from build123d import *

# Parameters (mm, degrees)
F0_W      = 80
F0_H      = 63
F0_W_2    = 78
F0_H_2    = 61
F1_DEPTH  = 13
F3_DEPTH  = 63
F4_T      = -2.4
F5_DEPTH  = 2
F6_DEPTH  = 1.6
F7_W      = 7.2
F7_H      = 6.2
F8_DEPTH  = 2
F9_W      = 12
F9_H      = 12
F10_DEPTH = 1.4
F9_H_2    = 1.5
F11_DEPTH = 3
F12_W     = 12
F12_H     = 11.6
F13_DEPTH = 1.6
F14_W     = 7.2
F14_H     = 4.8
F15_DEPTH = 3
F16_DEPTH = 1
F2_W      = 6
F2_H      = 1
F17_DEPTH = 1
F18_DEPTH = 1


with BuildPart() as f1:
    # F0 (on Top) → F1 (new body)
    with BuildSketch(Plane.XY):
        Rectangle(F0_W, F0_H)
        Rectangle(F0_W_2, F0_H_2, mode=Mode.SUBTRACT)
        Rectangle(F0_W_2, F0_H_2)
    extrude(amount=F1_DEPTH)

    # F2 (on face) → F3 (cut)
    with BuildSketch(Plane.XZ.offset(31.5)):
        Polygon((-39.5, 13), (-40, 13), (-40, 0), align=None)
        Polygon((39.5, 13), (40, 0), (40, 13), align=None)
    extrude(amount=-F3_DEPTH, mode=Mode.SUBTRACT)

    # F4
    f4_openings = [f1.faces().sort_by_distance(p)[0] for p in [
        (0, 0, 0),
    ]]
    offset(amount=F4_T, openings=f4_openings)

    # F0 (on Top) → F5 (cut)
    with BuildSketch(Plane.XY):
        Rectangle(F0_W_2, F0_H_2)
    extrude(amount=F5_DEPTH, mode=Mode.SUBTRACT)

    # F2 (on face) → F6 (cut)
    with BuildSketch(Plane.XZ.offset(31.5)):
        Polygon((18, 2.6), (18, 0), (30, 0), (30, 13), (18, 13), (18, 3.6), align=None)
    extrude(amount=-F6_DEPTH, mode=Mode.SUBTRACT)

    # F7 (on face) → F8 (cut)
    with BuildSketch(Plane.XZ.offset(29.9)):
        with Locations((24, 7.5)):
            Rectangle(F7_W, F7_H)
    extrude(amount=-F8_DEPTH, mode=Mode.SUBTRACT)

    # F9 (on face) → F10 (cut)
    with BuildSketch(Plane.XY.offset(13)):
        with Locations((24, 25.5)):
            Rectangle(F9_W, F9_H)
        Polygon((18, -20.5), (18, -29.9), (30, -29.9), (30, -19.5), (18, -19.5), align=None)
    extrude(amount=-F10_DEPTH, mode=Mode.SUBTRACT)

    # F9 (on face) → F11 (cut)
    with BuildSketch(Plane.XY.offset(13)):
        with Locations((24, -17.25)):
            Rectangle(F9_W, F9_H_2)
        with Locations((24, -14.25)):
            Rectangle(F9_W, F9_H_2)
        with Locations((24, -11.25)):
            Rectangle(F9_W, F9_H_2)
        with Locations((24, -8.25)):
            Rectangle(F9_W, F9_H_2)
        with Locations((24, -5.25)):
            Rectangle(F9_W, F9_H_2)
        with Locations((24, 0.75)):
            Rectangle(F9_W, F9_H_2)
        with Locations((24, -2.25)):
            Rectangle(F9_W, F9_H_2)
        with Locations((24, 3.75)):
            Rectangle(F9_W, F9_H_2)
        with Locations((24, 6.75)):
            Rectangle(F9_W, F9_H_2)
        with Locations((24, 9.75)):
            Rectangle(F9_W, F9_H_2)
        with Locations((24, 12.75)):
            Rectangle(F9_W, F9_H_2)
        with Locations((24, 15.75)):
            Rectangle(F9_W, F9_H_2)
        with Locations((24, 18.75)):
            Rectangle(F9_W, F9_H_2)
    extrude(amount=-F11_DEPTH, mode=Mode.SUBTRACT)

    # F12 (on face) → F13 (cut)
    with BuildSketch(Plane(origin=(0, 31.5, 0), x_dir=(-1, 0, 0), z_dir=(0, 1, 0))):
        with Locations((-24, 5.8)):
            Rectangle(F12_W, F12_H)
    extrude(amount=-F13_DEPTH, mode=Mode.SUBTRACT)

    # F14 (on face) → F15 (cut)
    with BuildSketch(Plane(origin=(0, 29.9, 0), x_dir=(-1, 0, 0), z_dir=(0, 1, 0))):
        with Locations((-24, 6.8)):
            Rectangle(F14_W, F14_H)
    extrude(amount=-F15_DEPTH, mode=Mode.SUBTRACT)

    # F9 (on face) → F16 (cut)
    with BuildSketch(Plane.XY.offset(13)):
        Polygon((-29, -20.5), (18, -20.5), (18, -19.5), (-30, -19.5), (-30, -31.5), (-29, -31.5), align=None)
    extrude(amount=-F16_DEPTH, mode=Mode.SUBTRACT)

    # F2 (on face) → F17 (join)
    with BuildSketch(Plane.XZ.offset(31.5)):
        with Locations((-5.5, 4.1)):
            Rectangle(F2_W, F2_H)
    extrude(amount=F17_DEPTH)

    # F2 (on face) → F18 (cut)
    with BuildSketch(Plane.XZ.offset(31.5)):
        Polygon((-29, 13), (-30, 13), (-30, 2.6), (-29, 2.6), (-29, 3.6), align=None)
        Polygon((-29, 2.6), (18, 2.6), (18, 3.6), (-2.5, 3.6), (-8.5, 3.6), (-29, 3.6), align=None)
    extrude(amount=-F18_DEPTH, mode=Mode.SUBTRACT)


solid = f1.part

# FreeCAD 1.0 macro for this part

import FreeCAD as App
import Part
import Sketcher

V = App.Vector
Q = App.Units.Quantity


def faces_at(feature, points):
    """Names of the faces that lie closest to the given points."""
    faces = feature.Shape.Faces
    near = lambda p: min(range(len(faces)), key=lambda i: faces[i].distToShape(Part.Vertex(*p))[0])
    return sorted({f"Face{near(p) + 1}" for p in points})


def add_polygon(sketch, points):
    """Adds a closed chain of lines whose ends are joined by coincident constraints."""
    first, n = sketch.GeometryCount, len(points)
    for a, b in zip(points, points[1:] + points[:1]):
        sketch.addGeometry(Part.LineSegment(App.Vector(*a, 0), App.Vector(*b, 0)), False)
    for i in range(n):
        sketch.addConstraint(Sketcher.Constraint("Coincident", first + i, 2, first + (i + 1) % n, 1))

doc = App.newDocument("Part")
body = doc.addObject("PartDesign::Body", "Body")

# Sketch on XY plane
sketch1 = body.newObject("Sketcher::SketchObject", "Sketch")
sketch1.AttachmentSupport = (doc.getObject("XY_Plane"), [""])
sketch1.MapMode = "FlatFace"
add_polygon(sketch1, [(-40, 31.5), (-40, -31.5), (40, -31.5), (40, 31.5)])  # lines 0-3
sketch1.addConstraint(Sketcher.Constraint("Vertical", 0))
sketch1.addConstraint(Sketcher.Constraint("Horizontal", 1))
sketch1.addConstraint(Sketcher.Constraint("Vertical", 2))
sketch1.addConstraint(Sketcher.Constraint("Horizontal", 3))
sketch1.addConstraint(Sketcher.Constraint("Symmetric", 0, 2, 2, 2, -1, 1))
sketch1.addConstraint(Sketcher.Constraint("DistanceX", 1, 1, 1, 2, Q("80 mm")))
sketch1.addConstraint(Sketcher.Constraint("DistanceY", 0, 2, 0, 1, Q("63 mm")))
pad1 = body.newObject("PartDesign::Pad", "Pad")
pad1.Profile = sketch1
pad1.Length = 13

# Sketch on XZ plane
sketch2 = body.newObject("Sketcher::SketchObject", "Sketch001")
sketch2.AttachmentSupport = (doc.getObject("XZ_Plane"), [""])
sketch2.MapMode = "FlatFace"
sketch2.AttachmentOffset = App.Placement(V(0, 0, 31.5), App.Rotation())
add_polygon(sketch2, [(-39.5, 13), (-40, 13), (-40, 0)])  # lines 0-2
add_polygon(sketch2, [(39.5, 13), (40, 0), (40, 13)])  # lines 3-5
sketch2.addConstraint(Sketcher.Constraint("Horizontal", 0))
sketch2.addConstraint(Sketcher.Constraint("Vertical", 1))
sketch2.addConstraint(Sketcher.Constraint("Vertical", 4))
sketch2.addConstraint(Sketcher.Constraint("Horizontal", 5))
sketch2.addConstraint(Sketcher.Constraint("Symmetric", 1, 2, 3, 2, -1, 1))
sketch2.addConstraint(Sketcher.Constraint("Symmetric", 2, 2, 5, 2, -2))
sketch2.addConstraint(Sketcher.Constraint("PointOnObject", 1, 2, -1))
sketch2.addConstraint(Sketcher.Constraint("DistanceY", 1, 2, 1, 1, Q("13 mm")))
sketch2.addConstraint(Sketcher.Constraint("DistanceX", 0, 2, 0, 1, Q("0.5 mm")))
sketch2.addConstraint(Sketcher.Constraint("DistanceX", 0, 2, -1, 1, Q("40 mm")))
pocket1 = body.newObject("PartDesign::Pocket", "Pocket")
pocket1.Profile = sketch2
pocket1.Length = 63
doc.recompute()

thickness = body.newObject("PartDesign::Thickness", "Thickness")
thickness.Base = (pocket1, faces_at(pocket1, [(0, 0, 0)]))
thickness.Value = 2.4
thickness.Reversed = True
thickness.Join = "Arc"

# Sketch on XY plane
sketch3 = body.newObject("Sketcher::SketchObject", "Sketch002")
sketch3.AttachmentSupport = (doc.getObject("XY_Plane"), [""])
sketch3.MapMode = "FlatFace"
add_polygon(sketch3, [(-39, 30.5), (-39, -30.5), (39, -30.5), (39, 30.5)])  # lines 0-3
sketch3.addConstraint(Sketcher.Constraint("Vertical", 0))
sketch3.addConstraint(Sketcher.Constraint("Horizontal", 1))
sketch3.addConstraint(Sketcher.Constraint("Vertical", 2))
sketch3.addConstraint(Sketcher.Constraint("Horizontal", 3))
sketch3.addConstraint(Sketcher.Constraint("Symmetric", 0, 2, 2, 2, -1, 1))
sketch3.addConstraint(Sketcher.Constraint("DistanceX", 1, 1, 1, 2, Q("78 mm")))
sketch3.addConstraint(Sketcher.Constraint("DistanceY", 0, 2, 0, 1, Q("61 mm")))
pocket2 = body.newObject("PartDesign::Pocket", "Pocket001")
pocket2.Profile = sketch3
pocket2.Length = 2
pocket2.Reversed = True

# Sketch on XZ plane
sketch4 = body.newObject("Sketcher::SketchObject", "Sketch003")
sketch4.AttachmentSupport = (doc.getObject("XZ_Plane"), [""])
sketch4.MapMode = "FlatFace"
sketch4.AttachmentOffset = App.Placement(V(0, 0, 31.5), App.Rotation())
add_polygon(sketch4, [(18, 0), (30, 0), (30, 13), (18, 13)])  # lines 0-3
sketch4.addConstraint(Sketcher.Constraint("Horizontal", 0))
sketch4.addConstraint(Sketcher.Constraint("Vertical", 1))
sketch4.addConstraint(Sketcher.Constraint("Horizontal", 2))
sketch4.addConstraint(Sketcher.Constraint("Vertical", 3))
sketch4.addConstraint(Sketcher.Constraint("PointOnObject", 0, 2, -1))
sketch4.addConstraint(Sketcher.Constraint("DistanceX", 0, 1, 0, 2, Q("12 mm")))
sketch4.addConstraint(Sketcher.Constraint("DistanceY", 1, 1, 1, 2, Q("13 mm")))
sketch4.addConstraint(Sketcher.Constraint("DistanceX", -1, 1, 0, 2, Q("30 mm")))
pocket3 = body.newObject("PartDesign::Pocket", "Pocket002")
pocket3.Profile = sketch4
pocket3.Length = 1.6

# Sketch on XZ plane
sketch5 = body.newObject("Sketcher::SketchObject", "Sketch004")
sketch5.AttachmentSupport = (doc.getObject("XZ_Plane"), [""])
sketch5.MapMode = "FlatFace"
sketch5.AttachmentOffset = App.Placement(V(0, 0, 29.9), App.Rotation())
add_polygon(sketch5, [(20.4, 10.6), (20.4, 4.4), (27.6, 4.4), (27.6, 10.6)])  # lines 0-3
sketch5.addConstraint(Sketcher.Constraint("Vertical", 0))
sketch5.addConstraint(Sketcher.Constraint("Horizontal", 1))
sketch5.addConstraint(Sketcher.Constraint("Vertical", 2))
sketch5.addConstraint(Sketcher.Constraint("Horizontal", 3))
sketch5.addConstraint(Sketcher.Constraint("DistanceX", 1, 1, 1, 2, Q("7.2 mm")))
sketch5.addConstraint(Sketcher.Constraint("DistanceY", 0, 2, 0, 1, Q("6.2 mm")))
sketch5.addConstraint(Sketcher.Constraint("DistanceX", -1, 1, 0, 2, Q("20.4 mm")))
sketch5.addConstraint(Sketcher.Constraint("DistanceY", -1, 1, 0, 2, Q("4.4 mm")))
pocket4 = body.newObject("PartDesign::Pocket", "Pocket003")
pocket4.Profile = sketch5
pocket4.Length = 2

# Sketch on XY plane
sketch6 = body.newObject("Sketcher::SketchObject", "Sketch005")
sketch6.AttachmentSupport = (doc.getObject("XY_Plane"), [""])
sketch6.MapMode = "FlatFace"
sketch6.AttachmentOffset = App.Placement(V(0, 0, 13), App.Rotation())
add_polygon(sketch6, [(18, 31.5), (18, 19.5), (30, 19.5), (30, 31.5)])  # lines 0-3
add_polygon(sketch6, [(18, -29.9), (30, -29.9), (30, -19.5), (18, -19.5)])  # lines 4-7
sketch6.addConstraint(Sketcher.Constraint("Vertical", 0))
sketch6.addConstraint(Sketcher.Constraint("Horizontal", 1))
sketch6.addConstraint(Sketcher.Constraint("Vertical", 2))
sketch6.addConstraint(Sketcher.Constraint("Horizontal", 3))
sketch6.addConstraint(Sketcher.Constraint("Horizontal", 4))
sketch6.addConstraint(Sketcher.Constraint("Vertical", 5))
sketch6.addConstraint(Sketcher.Constraint("Horizontal", 6))
sketch6.addConstraint(Sketcher.Constraint("Vertical", 7))
sketch6.addConstraint(Sketcher.Constraint("Symmetric", 1, 2, 5, 2, -1))
sketch6.addConstraint(Sketcher.Constraint("Vertical", 3, 2, 6, 2))
sketch6.addConstraint(Sketcher.Constraint("Equal", 6, 0))
sketch6.addConstraint(Sketcher.Constraint("DistanceX", 1, 1, 1, 2, Q("12 mm")))
sketch6.addConstraint(Sketcher.Constraint("DistanceY", 5, 1, 5, 2, Q("10.4 mm")))
sketch6.addConstraint(Sketcher.Constraint("DistanceX", -1, 1, 0, 2, Q("18 mm")))
sketch6.addConstraint(Sketcher.Constraint("DistanceY", 5, 2, 1, 2, Q("39 mm")))
pocket5 = body.newObject("PartDesign::Pocket", "Pocket004")
pocket5.Profile = sketch6
pocket5.Length = 1.4

# Sketch on XY plane
sketch7 = body.newObject("Sketcher::SketchObject", "Sketch006")
sketch7.AttachmentSupport = (doc.getObject("XY_Plane"), [""])
sketch7.MapMode = "FlatFace"
sketch7.AttachmentOffset = App.Placement(V(0, 0, 13), App.Rotation())
add_polygon(sketch7, [(18, -16.5), (18, -18), (30, -18), (30, -16.5)])  # lines 0-3
add_polygon(sketch7, [(18, -13.5), (18, -15), (30, -15), (30, -13.5)])  # lines 4-7
add_polygon(sketch7, [(18, -10.5), (18, -12), (30, -12), (30, -10.5)])  # lines 8-11
add_polygon(sketch7, [(18, -7.5), (18, -9), (30, -9), (30, -7.5)])  # lines 12-15
add_polygon(sketch7, [(18, -4.5), (18, -6), (30, -6), (30, -4.5)])  # lines 16-19
add_polygon(sketch7, [(18, 1.5), (18, 0), (30, 0), (30, 1.5)])  # lines 20-23
add_polygon(sketch7, [(18, -1.5), (18, -3), (30, -3), (30, -1.5)])  # lines 24-27
add_polygon(sketch7, [(18, 4.5), (18, 3), (30, 3), (30, 4.5)])  # lines 28-31
add_polygon(sketch7, [(18, 7.5), (18, 6), (30, 6), (30, 7.5)])  # lines 32-35
add_polygon(sketch7, [(18, 10.5), (18, 9), (30, 9), (30, 10.5)])  # lines 36-39
add_polygon(sketch7, [(18, 13.5), (18, 12), (30, 12), (30, 13.5)])  # lines 40-43
add_polygon(sketch7, [(18, 16.5), (18, 15), (30, 15), (30, 16.5)])  # lines 44-47
add_polygon(sketch7, [(18, 19.5), (18, 18), (30, 18), (30, 19.5)])  # lines 48-51
sketch7.addConstraint(Sketcher.Constraint("Vertical", 0))
sketch7.addConstraint(Sketcher.Constraint("Horizontal", 1))
sketch7.addConstraint(Sketcher.Constraint("Vertical", 2))
sketch7.addConstraint(Sketcher.Constraint("Horizontal", 3))
sketch7.addConstraint(Sketcher.Constraint("Vertical", 4))
sketch7.addConstraint(Sketcher.Constraint("Horizontal", 5))
sketch7.addConstraint(Sketcher.Constraint("Vertical", 6))
sketch7.addConstraint(Sketcher.Constraint("Horizontal", 7))
sketch7.addConstraint(Sketcher.Constraint("Vertical", 8))
sketch7.addConstraint(Sketcher.Constraint("Horizontal", 9))
sketch7.addConstraint(Sketcher.Constraint("Vertical", 10))
sketch7.addConstraint(Sketcher.Constraint("Horizontal", 11))
sketch7.addConstraint(Sketcher.Constraint("Vertical", 12))
sketch7.addConstraint(Sketcher.Constraint("Horizontal", 13))
sketch7.addConstraint(Sketcher.Constraint("Vertical", 14))
sketch7.addConstraint(Sketcher.Constraint("Horizontal", 15))
sketch7.addConstraint(Sketcher.Constraint("Vertical", 16))
sketch7.addConstraint(Sketcher.Constraint("Horizontal", 17))
sketch7.addConstraint(Sketcher.Constraint("Vertical", 18))
sketch7.addConstraint(Sketcher.Constraint("Horizontal", 19))
sketch7.addConstraint(Sketcher.Constraint("Vertical", 20))
sketch7.addConstraint(Sketcher.Constraint("Horizontal", 21))
sketch7.addConstraint(Sketcher.Constraint("Vertical", 22))
sketch7.addConstraint(Sketcher.Constraint("Horizontal", 23))
sketch7.addConstraint(Sketcher.Constraint("Vertical", 24))
sketch7.addConstraint(Sketcher.Constraint("Horizontal", 25))
sketch7.addConstraint(Sketcher.Constraint("Vertical", 26))
sketch7.addConstraint(Sketcher.Constraint("Horizontal", 27))
sketch7.addConstraint(Sketcher.Constraint("Vertical", 28))
sketch7.addConstraint(Sketcher.Constraint("Horizontal", 29))
sketch7.addConstraint(Sketcher.Constraint("Vertical", 30))
sketch7.addConstraint(Sketcher.Constraint("Horizontal", 31))
sketch7.addConstraint(Sketcher.Constraint("Vertical", 32))
sketch7.addConstraint(Sketcher.Constraint("Horizontal", 33))
sketch7.addConstraint(Sketcher.Constraint("Vertical", 34))
sketch7.addConstraint(Sketcher.Constraint("Horizontal", 35))
sketch7.addConstraint(Sketcher.Constraint("Vertical", 36))
sketch7.addConstraint(Sketcher.Constraint("Horizontal", 37))
sketch7.addConstraint(Sketcher.Constraint("Vertical", 38))
sketch7.addConstraint(Sketcher.Constraint("Horizontal", 39))
sketch7.addConstraint(Sketcher.Constraint("Vertical", 40))
sketch7.addConstraint(Sketcher.Constraint("Horizontal", 41))
sketch7.addConstraint(Sketcher.Constraint("Vertical", 42))
sketch7.addConstraint(Sketcher.Constraint("Horizontal", 43))
sketch7.addConstraint(Sketcher.Constraint("Vertical", 44))
sketch7.addConstraint(Sketcher.Constraint("Horizontal", 45))
sketch7.addConstraint(Sketcher.Constraint("Vertical", 46))
sketch7.addConstraint(Sketcher.Constraint("Horizontal", 47))
sketch7.addConstraint(Sketcher.Constraint("Vertical", 48))
sketch7.addConstraint(Sketcher.Constraint("Horizontal", 49))
sketch7.addConstraint(Sketcher.Constraint("Vertical", 50))
sketch7.addConstraint(Sketcher.Constraint("Horizontal", 51))
sketch7.addConstraint(Sketcher.Constraint("Symmetric", 22, 2, 26, 2, -1))
sketch7.addConstraint(Sketcher.Constraint("Symmetric", 24, 2, 28, 2, -1))
sketch7.addConstraint(Sketcher.Constraint("Symmetric", 18, 2, 30, 2, -1))
sketch7.addConstraint(Sketcher.Constraint("Symmetric", 16, 2, 32, 2, -1))
sketch7.addConstraint(Sketcher.Constraint("Symmetric", 14, 2, 34, 2, -1))
sketch7.addConstraint(Sketcher.Constraint("Symmetric", 12, 2, 36, 2, -1))
sketch7.addConstraint(Sketcher.Constraint("Symmetric", 10, 2, 38, 2, -1))
sketch7.addConstraint(Sketcher.Constraint("Symmetric", 8, 2, 40, 2, -1))
sketch7.addConstraint(Sketcher.Constraint("Symmetric", 6, 2, 42, 2, -1))
sketch7.addConstraint(Sketcher.Constraint("Symmetric", 4, 2, 44, 2, -1))
sketch7.addConstraint(Sketcher.Constraint("Symmetric", 2, 2, 46, 2, -1))
sketch7.addConstraint(Sketcher.Constraint("Symmetric", 0, 2, 48, 2, -1))
sketch7.addConstraint(Sketcher.Constraint("PointOnObject", 20, 2, -1))
sketch7.addConstraint(Sketcher.Constraint("Vertical", 3, 2, 4, 2))
sketch7.addConstraint(Sketcher.Constraint("Vertical", 2, 2, 5, 2))
sketch7.addConstraint(Sketcher.Constraint("Vertical", 7, 2, 8, 2))
sketch7.addConstraint(Sketcher.Constraint("Vertical", 6, 2, 9, 2))
sketch7.addConstraint(Sketcher.Constraint("Vertical", 11, 2, 12, 2))
sketch7.addConstraint(Sketcher.Constraint("Vertical", 10, 2, 13, 2))
sketch7.addConstraint(Sketcher.Constraint("Vertical", 15, 2, 16, 2))
sketch7.addConstraint(Sketcher.Constraint("Vertical", 14, 2, 17, 2))
sketch7.addConstraint(Sketcher.Constraint("Vertical", 19, 2, 20, 2))
sketch7.addConstraint(Sketcher.Constraint("Vertical", 18, 2, 21, 2))
sketch7.addConstraint(Sketcher.Constraint("Vertical", 23, 2, 24, 2))
sketch7.addConstraint(Sketcher.Constraint("Vertical", 46, 2, 49, 2))
sketch7.addConstraint(Sketcher.Constraint("Equal", 2, 4))
sketch7.addConstraint(Sketcher.Constraint("Equal", 6, 8))
sketch7.addConstraint(Sketcher.Constraint("Equal", 10, 12))
sketch7.addConstraint(Sketcher.Constraint("Equal", 14, 16))
sketch7.addConstraint(Sketcher.Constraint("Equal", 18, 20))
sketch7.addConstraint(Sketcher.Constraint("Equal", 22, 24))
sketch7.addConstraint(Sketcher.Constraint("Equal", 26, 28))
sketch7.addConstraint(Sketcher.Constraint("Equal", 30, 32))
sketch7.addConstraint(Sketcher.Constraint("Equal", 34, 36))
sketch7.addConstraint(Sketcher.Constraint("Equal", 38, 40))
sketch7.addConstraint(Sketcher.Constraint("Equal", 42, 44))
sketch7.addConstraint(Sketcher.Constraint("Equal", 46, 48))
sketch7.addConstraint(Sketcher.Constraint("DistanceX", 1, 1, 1, 2, Q("12 mm")))
sketch7.addConstraint(Sketcher.Constraint("DistanceY", 0, 2, 0, 1, Q("1.5 mm")))
sketch7.addConstraint(Sketcher.Constraint("DistanceX", -1, 1, 0, 2, Q("18 mm")))
pocket6 = body.newObject("PartDesign::Pocket", "Pocket005")
pocket6.Profile = sketch7
pocket6.Length = 3

# Sketch on XZ plane
sketch8 = body.newObject("Sketcher::SketchObject", "Sketch007")
sketch8.AttachmentSupport = (doc.getObject("XZ_Plane"), [""])
sketch8.MapMode = "FlatFace"
sketch8.AttachmentOffset = App.Placement(V(0, 0, -31.5), App.Rotation())
add_polygon(sketch8, [(30, 11.6), (30, 0), (18, 0), (18, 11.6)])  # lines 0-3
sketch8.addConstraint(Sketcher.Constraint("Vertical", 0))
sketch8.addConstraint(Sketcher.Constraint("Horizontal", 1))
sketch8.addConstraint(Sketcher.Constraint("Vertical", 2))
sketch8.addConstraint(Sketcher.Constraint("Horizontal", 3))
sketch8.addConstraint(Sketcher.Constraint("PointOnObject", 0, 2, -1))
sketch8.addConstraint(Sketcher.Constraint("DistanceX", 1, 2, 1, 1, Q("12 mm")))
sketch8.addConstraint(Sketcher.Constraint("DistanceY", 0, 2, 0, 1, Q("11.6 mm")))
sketch8.addConstraint(Sketcher.Constraint("DistanceX", -1, 1, 0, 2, Q("30 mm")))
pocket7 = body.newObject("PartDesign::Pocket", "Pocket006")
pocket7.Profile = sketch8
pocket7.Length = 1.6
pocket7.Reversed = True

# Sketch on XZ plane
sketch9 = body.newObject("Sketcher::SketchObject", "Sketch008")
sketch9.AttachmentSupport = (doc.getObject("XZ_Plane"), [""])
sketch9.MapMode = "FlatFace"
sketch9.AttachmentOffset = App.Placement(V(0, 0, -29.9), App.Rotation())
add_polygon(sketch9, [(27.6, 9.2), (27.6, 4.4), (20.4, 4.4), (20.4, 9.2)])  # lines 0-3
sketch9.addConstraint(Sketcher.Constraint("Vertical", 0))
sketch9.addConstraint(Sketcher.Constraint("Horizontal", 1))
sketch9.addConstraint(Sketcher.Constraint("Vertical", 2))
sketch9.addConstraint(Sketcher.Constraint("Horizontal", 3))
sketch9.addConstraint(Sketcher.Constraint("DistanceX", 1, 2, 1, 1, Q("7.2 mm")))
sketch9.addConstraint(Sketcher.Constraint("DistanceY", 0, 2, 0, 1, Q("4.8 mm")))
sketch9.addConstraint(Sketcher.Constraint("DistanceX", -1, 1, 0, 2, Q("27.6 mm")))
sketch9.addConstraint(Sketcher.Constraint("DistanceY", -1, 1, 0, 2, Q("4.4 mm")))
pocket8 = body.newObject("PartDesign::Pocket", "Pocket007")
pocket8.Profile = sketch9
pocket8.Length = 3
pocket8.Reversed = True

# Sketch on XY plane
sketch10 = body.newObject("Sketcher::SketchObject", "Sketch009")
sketch10.AttachmentSupport = (doc.getObject("XY_Plane"), [""])
sketch10.MapMode = "FlatFace"
sketch10.AttachmentOffset = App.Placement(V(0, 0, 13), App.Rotation())
add_polygon(sketch10, [(-29, -20.5), (18, -20.5), (18, -19.5), (-30, -19.5), (-30, -31.5), (-29, -31.5)])  # lines 0-5
sketch10.addConstraint(Sketcher.Constraint("Horizontal", 0))
sketch10.addConstraint(Sketcher.Constraint("Vertical", 1))
sketch10.addConstraint(Sketcher.Constraint("Horizontal", 2))
sketch10.addConstraint(Sketcher.Constraint("Vertical", 3))
sketch10.addConstraint(Sketcher.Constraint("Horizontal", 4))
sketch10.addConstraint(Sketcher.Constraint("Vertical", 5))
sketch10.addConstraint(Sketcher.Constraint("Equal", 4, 1))
sketch10.addConstraint(Sketcher.Constraint("DistanceX", 0, 1, 0, 2, Q("47 mm")))
sketch10.addConstraint(Sketcher.Constraint("DistanceX", 2, 2, 2, 1, Q("48 mm")))
sketch10.addConstraint(Sketcher.Constraint("DistanceY", 3, 2, 3, 1, Q("12 mm")))
sketch10.addConstraint(Sketcher.Constraint("DistanceX", -1, 1, 0, 2, Q("18 mm")))
sketch10.addConstraint(Sketcher.Constraint("DistanceY", 0, 2, -1, 1, Q("20.5 mm")))
pocket9 = body.newObject("PartDesign::Pocket", "Pocket008")
pocket9.Profile = sketch10
pocket9.Length = 1

# Sketch on XZ plane
sketch11 = body.newObject("Sketcher::SketchObject", "Sketch010")
sketch11.AttachmentSupport = (doc.getObject("XZ_Plane"), [""])
sketch11.MapMode = "FlatFace"
sketch11.AttachmentOffset = App.Placement(V(0, 0, 31.5), App.Rotation())
add_polygon(sketch11, [(-8.5, 4.6), (-8.5, 3.6), (-2.5, 3.6), (-2.5, 4.6)])  # lines 0-3
sketch11.addConstraint(Sketcher.Constraint("Vertical", 0))
sketch11.addConstraint(Sketcher.Constraint("Horizontal", 1))
sketch11.addConstraint(Sketcher.Constraint("Vertical", 2))
sketch11.addConstraint(Sketcher.Constraint("Horizontal", 3))
sketch11.addConstraint(Sketcher.Constraint("DistanceX", 1, 1, 1, 2, Q("6 mm")))
sketch11.addConstraint(Sketcher.Constraint("DistanceY", 0, 2, 0, 1, Q("1 mm")))
sketch11.addConstraint(Sketcher.Constraint("DistanceX", 0, 2, -1, 1, Q("8.5 mm")))
sketch11.addConstraint(Sketcher.Constraint("DistanceY", -1, 1, 0, 2, Q("3.6 mm")))
pad2 = body.newObject("PartDesign::Pad", "Pad001")
pad2.Profile = sketch11
pad2.Length = 1

# Sketch on XZ plane
sketch12 = body.newObject("Sketcher::SketchObject", "Sketch011")
sketch12.AttachmentSupport = (doc.getObject("XZ_Plane"), [""])
sketch12.MapMode = "FlatFace"
sketch12.AttachmentOffset = App.Placement(V(0, 0, 31.5), App.Rotation())
add_polygon(sketch12, [(-29, 13), (-30, 13), (-30, 2.6), (18, 2.6), (18, 3.6), (-29, 3.6)])  # lines 0-5
sketch12.addConstraint(Sketcher.Constraint("Horizontal", 0))
sketch12.addConstraint(Sketcher.Constraint("Vertical", 1))
sketch12.addConstraint(Sketcher.Constraint("Horizontal", 2))
sketch12.addConstraint(Sketcher.Constraint("Vertical", 3))
sketch12.addConstraint(Sketcher.Constraint("Horizontal", 4))
sketch12.addConstraint(Sketcher.Constraint("Vertical", 5))
sketch12.addConstraint(Sketcher.Constraint("Equal", 0, 3))
sketch12.addConstraint(Sketcher.Constraint("DistanceX", 0, 2, 0, 1, Q("1 mm")))
sketch12.addConstraint(Sketcher.Constraint("DistanceX", 2, 1, 2, 2, Q("48 mm")))
sketch12.addConstraint(Sketcher.Constraint("DistanceY", 1, 2, 1, 1, Q("10.4 mm")))
sketch12.addConstraint(Sketcher.Constraint("DistanceX", 0, 2, -1, 1, Q("30 mm")))
sketch12.addConstraint(Sketcher.Constraint("DistanceY", -1, 1, 0, 2, Q("13 mm")))
pocket10 = body.newObject("PartDesign::Pocket", "Pocket009")
pocket10.Profile = sketch12
pocket10.Length = 1

doc.recompute()
